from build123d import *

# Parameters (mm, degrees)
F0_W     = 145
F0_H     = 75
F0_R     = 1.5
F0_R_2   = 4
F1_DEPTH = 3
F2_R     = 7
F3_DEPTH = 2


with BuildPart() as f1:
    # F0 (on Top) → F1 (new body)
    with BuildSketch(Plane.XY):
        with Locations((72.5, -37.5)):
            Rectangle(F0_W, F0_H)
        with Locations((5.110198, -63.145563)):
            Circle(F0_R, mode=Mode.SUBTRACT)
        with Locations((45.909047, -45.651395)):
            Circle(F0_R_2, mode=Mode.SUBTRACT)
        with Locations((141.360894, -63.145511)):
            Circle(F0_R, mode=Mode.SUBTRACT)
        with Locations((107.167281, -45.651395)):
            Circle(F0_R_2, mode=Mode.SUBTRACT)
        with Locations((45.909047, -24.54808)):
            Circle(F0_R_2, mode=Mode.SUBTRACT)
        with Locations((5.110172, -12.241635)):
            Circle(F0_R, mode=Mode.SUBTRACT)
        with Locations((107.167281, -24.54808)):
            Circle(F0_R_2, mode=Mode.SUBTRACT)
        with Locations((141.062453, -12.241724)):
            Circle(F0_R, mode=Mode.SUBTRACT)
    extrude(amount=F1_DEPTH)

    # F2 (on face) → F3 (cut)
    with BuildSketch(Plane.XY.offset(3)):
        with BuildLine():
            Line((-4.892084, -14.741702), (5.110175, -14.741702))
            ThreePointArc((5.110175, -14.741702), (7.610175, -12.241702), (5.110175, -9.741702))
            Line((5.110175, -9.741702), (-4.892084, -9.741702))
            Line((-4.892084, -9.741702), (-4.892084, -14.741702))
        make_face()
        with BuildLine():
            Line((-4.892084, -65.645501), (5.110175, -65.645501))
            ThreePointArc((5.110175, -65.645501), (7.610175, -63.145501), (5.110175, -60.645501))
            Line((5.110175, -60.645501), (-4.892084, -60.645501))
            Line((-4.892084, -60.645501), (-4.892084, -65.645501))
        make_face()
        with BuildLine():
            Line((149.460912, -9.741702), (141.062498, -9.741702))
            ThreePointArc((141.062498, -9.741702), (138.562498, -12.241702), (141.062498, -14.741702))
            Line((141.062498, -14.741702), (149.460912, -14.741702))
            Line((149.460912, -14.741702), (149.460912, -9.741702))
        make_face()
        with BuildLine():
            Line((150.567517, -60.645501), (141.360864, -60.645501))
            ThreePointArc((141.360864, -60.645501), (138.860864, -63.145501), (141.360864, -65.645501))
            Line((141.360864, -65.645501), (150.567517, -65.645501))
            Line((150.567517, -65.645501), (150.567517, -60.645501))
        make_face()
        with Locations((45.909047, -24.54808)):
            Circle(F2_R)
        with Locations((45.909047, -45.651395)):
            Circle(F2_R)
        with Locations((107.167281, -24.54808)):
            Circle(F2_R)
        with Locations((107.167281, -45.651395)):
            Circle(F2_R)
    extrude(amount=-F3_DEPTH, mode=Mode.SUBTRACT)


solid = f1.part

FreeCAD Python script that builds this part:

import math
import FreeCAD as App
import Part
import Sketcher

doc = App.newDocument("Part")
body = doc.addObject("PartDesign::Body", "Body")

# Sketch on XY plane
sketch1 = doc.addObject("Sketcher::SketchObject", "Sketch")
body.addObject(sketch1)
sketch1.AttachmentSupport = (doc.XY_Plane, [""])
sketch1.MapMode = "FlatFace"
sketch1.addGeometry([
    Part.LineSegment(App.Vector(0, 0, 0), App.Vector(0, -75, 0)),  # 0
    Part.LineSegment(App.Vector(0, -75, 0), App.Vector(145, -75, 0)),  # 1
    Part.LineSegment(App.Vector(145, -75, 0), App.Vector(145, 0, 0)),  # 2
    Part.LineSegment(App.Vector(145, 0, 0), App.Vector(0, 0, 0)),  # 3
    Part.Circle(App.Vector(5.110198, -63.145563, 0), App.Vector(0, 0, 1), 1.5),  # 4
    Part.Circle(App.Vector(45.909047, -45.651395, 0), App.Vector(0, 0, 1), 4),  # 5
    Part.Circle(App.Vector(141.360894, -63.145511, 0), App.Vector(0, 0, 1), 1.5),  # 6
    Part.Circle(App.Vector(107.167281, -45.651395, 0), App.Vector(0, 0, 1), 4),  # 7
    Part.Circle(App.Vector(45.909047, -24.54808, 0), App.Vector(0, 0, 1), 4),  # 8
    Part.Circle(App.Vector(5.110172, -12.241635, 0), App.Vector(0, 0, 1), 1.5),  # 9
    Part.Circle(App.Vector(107.167281, -24.54808, 0), App.Vector(0, 0, 1), 4),  # 10
    Part.Circle(App.Vector(141.062453, -12.241724, 0), App.Vector(0, 0, 1), 1.5),  # 11
], False)
sketch1.addConstraint([
    Sketcher.Constraint("Coincident", 0, 2, 1, 1),
    Sketcher.Constraint("Coincident", 1, 2, 2, 1),
    Sketcher.Constraint("Coincident", 2, 2, 3, 1),
    Sketcher.Constraint("Coincident", 3, 2, 0, 1),
    Sketcher.Constraint("Vertical", 0),
    Sketcher.Constraint("Horizontal", 1),
    Sketcher.Constraint("Vertical", 2),
    Sketcher.Constraint("Horizontal", 3),
    Sketcher.Constraint("Coincident", 3, 2, -1, 1),
    Sketcher.Constraint("Equal", 4, 6),
    Sketcher.Constraint("Equal", 5, 7),
    Sketcher.Constraint("Equal", 7, 8),
    Sketcher.Constraint("Equal", 6, 9),
    Sketcher.Constraint("Equal", 8, 10),
    Sketcher.Constraint("Equal", 9, 11),
    Sketcher.Constraint("Horizontal", 5, 3, 7, 3),
    Sketcher.Constraint("Horizontal", 8, 3, 10, 3),
    Sketcher.Constraint("Vertical", 5, 3, 8, 3),
    Sketcher.Constraint("Vertical", 7, 3, 10, 3),
    Sketcher.Constraint("Diameter", 4, 3.0),
    Sketcher.Constraint("Diameter", 5, 8.0),
    Sketcher.Constraint("DistanceX", 1, 1, 1, 2, 145.0),
    Sketcher.Constraint("DistanceY", 0, 2, 0, 1, 75.0),
    Sketcher.Constraint("DistanceY", 6, 3, -1, 1, 63.145511),
    Sketcher.Constraint("DistanceX", -1, 1, 7, 3, 107.167281),
    Sketcher.Constraint("DistanceY", 8, 3, -1, 1, 24.54808),
    Sketcher.Constraint("DistanceX", 4, 3, 5, 3, 40.798849),
    Sketcher.Constraint("DistanceY", 4, 3, 5, 3, 17.494168),
    Sketcher.Constraint("DistanceY", 5, 3, 9, 3, 33.40976),
    Sketcher.Constraint("DistanceX", 9, 3, 7, 3, 102.057109),
    Sketcher.Constraint("DistanceX", 9, 3, 6, 3, 136.250722),
    Sketcher.Constraint("DistanceY", 7, 3, 11, 3, 33.409671),
    Sketcher.Constraint("DistanceX", 11, 3, 6, 3, 0.298441),
    Sketcher.Constraint("DistanceX", -1, 1, 4, 3, 5.110198),
    Sketcher.Constraint("DistanceY", 4, 3, -1, 1, 63.145563),
])
pad1 = doc.addObject("PartDesign::Pad", "Pad")
body.addObject(pad1)
pad1.Profile = sketch1
pad1.Length = 3

# Sketch on XY plane
sketch2 = doc.addObject("Sketcher::SketchObject", "Sketch001")
body.addObject(sketch2)
sketch2.AttachmentSupport = (doc.XY_Plane, [""])
sketch2.MapMode = "FlatFace"
sketch2.AttachmentOffset = App.Placement(App.Vector(0, 0, 3), App.Rotation())
sketch2.addGeometry([
    Part.LineSegment(App.Vector(-4.892084, -14.741702, 0), App.Vector(5.110175, -14.741702, 0)),  # 0
    Part.ArcOfCircle(Part.Circle(App.Vector(5.110175, -12.241702, 0), App.Vector(0, 0, 1), 2.5), math.radians(-90), math.radians(90)),  # 1
    Part.LineSegment(App.Vector(5.110175, -9.741702, 0), App.Vector(-4.892084, -9.741702, 0)),  # 2
    Part.LineSegment(App.Vector(-4.892084, -9.741702, 0), App.Vector(-4.892084, -14.741702, 0)),  # 3
    Part.LineSegment(App.Vector(-4.892084, -65.645501, 0), App.Vector(5.110175, -65.645501, 0)),  # 4
    Part.ArcOfCircle(Part.Circle(App.Vector(5.110175, -63.145501, 0), App.Vector(0, 0, 1), 2.5), math.radians(-90), math.radians(90)),  # 5
    Part.LineSegment(App.Vector(5.110175, -60.645501, 0), App.Vector(-4.892084, -60.645501, 0)),  # 6
    Part.LineSegment(App.Vector(-4.892084, -60.645501, 0), App.Vector(-4.892084, -65.645501, 0)),  # 7
    Part.LineSegment(App.Vector(149.460912, -9.741702, 0), App.Vector(141.062498, -9.741702, 0)),  # 8
    Part.ArcOfCircle(Part.Circle(App.Vector(141.062498, -12.241702, 0), App.Vector(0, 0, 1), 2.5), math.radians(90), math.radians(270)),  # 9
    Part.LineSegment(App.Vector(141.062498, -14.741702, 0), App.Vector(149.460912, -14.741702, 0)),  # 10
    Part.LineSegment(App.Vector(149.460912, -14.741702, 0), App.Vector(149.460912, -9.741702, 0)),  # 11
    Part.LineSegment(App.Vector(150.567517, -60.645501, 0), App.Vector(141.360864, -60.645501, 0)),  # 12
    Part.ArcOfCircle(Part.Circle(App.Vector(141.360864, -63.145501, 0), App.Vector(0, 0, 1), 2.5), math.radians(90), math.radians(270)),  # 13
    Part.LineSegment(App.Vector(141.360864, -65.645501, 0), App.Vector(150.567517, -65.645501, 0)),  # 14
    Part.LineSegment(App.Vector(150.567517, -65.645501, 0), App.Vector(150.567517, -60.645501, 0)),  # 15
    Part.Circle(App.Vector(45.909047, -24.54808, 0), App.Vector(0, 0, 1), 7),  # 16
    Part.Circle(App.Vector(45.909047, -45.651395, 0), App.Vector(0, 0, 1), 7),  # 17
    Part.Circle(App.Vector(107.167281, -24.54808, 0), App.Vector(0, 0, 1), 7),  # 18
    Part.Circle(App.Vector(107.167281, -45.651395, 0), App.Vector(0, 0, 1), 7),  # 19
], False)
sketch2.addConstraint([
    Sketcher.Constraint("Tangent", 0, 2, 1, 1),
    Sketcher.Constraint("Tangent", 1, 2, 2, 1),
    Sketcher.Constraint("Coincident", 2, 2, 3, 1),
    Sketcher.Constraint("Coincident", 3, 2, 0, 1),
    Sketcher.Constraint("Tangent", 4, 2, 5, 1),
    Sketcher.Constraint("Tangent", 5, 2, 6, 1),
    Sketcher.Constraint("Coincident", 6, 2, 7, 1),
    Sketcher.Constraint("Coincident", 7, 2, 4, 1),
    Sketcher.Constraint("Tangent", 8, 2, 9, 1),
    Sketcher.Constraint("Tangent", 9, 2, 10, 1),
    Sketcher.Constraint("Coincident", 10, 2, 11, 1),
    Sketcher.Constraint("Coincident", 11, 2, 8, 1),
    Sketcher.Constraint("Tangent", 12, 2, 13, 1),
    Sketcher.Constraint("Tangent", 13, 2, 14, 1),
    Sketcher.Constraint("Coincident", 14, 2, 15, 1),
    Sketcher.Constraint("Coincident", 15, 2, 12, 1),
    Sketcher.Constraint("Horizontal", 0),
    Sketcher.Constraint("Horizontal", 2),
    Sketcher.Constraint("Vertical", 3),
    Sketcher.Constraint("Horizontal", 4),
    Sketcher.Constraint("Horizontal", 6),
    Sketcher.Constraint("Vertical", 7),
    Sketcher.Constraint("Horizontal", 8),
    Sketcher.Constraint("Horizontal", 10),
    Sketcher.Constraint("Vertical", 11),
    Sketcher.Constraint("Horizontal", 12),
    Sketcher.Constraint("Horizontal", 14),
    Sketcher.Constraint("Vertical", 15),
    Sketcher.Constraint("Equal", 1, 5),
    Sketcher.Constraint("Equal", 5, 9),
    Sketcher.Constraint("Equal", 9, 13),
    Sketcher.Constraint("Equal", 16, 17),
    Sketcher.Constraint("Equal", 17, 18),
    Sketcher.Constraint("Equal", 18, 19),
    Sketcher.Constraint("Horizontal", 1, 3, 9, 3),
    Sketcher.Constraint("Horizontal", 5, 3, 13, 3),
    Sketcher.Constraint("Horizontal", 16, 3, 18, 3),
    Sketcher.Constraint("Horizontal", 17, 3, 19, 3),
    Sketcher.Constraint("Vertical", 1, 3, 5, 3),
    Sketcher.Constraint("Vertical", 16, 3, 17, 3),
    Sketcher.Constraint("Vertical", 18, 3, 19, 3),
    Sketcher.Constraint("Vertical", 3, 2, 6, 2),
    Sketcher.Constraint("Diameter", 16, 14.0),
    Sketcher.Constraint("Radius", 1, 2.5),
    Sketcher.Constraint("DistanceX", 0, 1, 0, 2, 10.002259),
    Sketcher.Constraint("DistanceY", 5, 3, -1, 1, 63.145501),
    Sketcher.Constraint("DistanceX", -1, 1, 9, 3, 141.062498),
    Sketcher.Constraint("DistanceY", 5, 3, 1, 3, 50.903799),
    Sketcher.Constraint("DistanceX", 8, 2, 8, 1, 8.398414),
    Sketcher.Constraint("DistanceX", 12, 2, 12, 1, 9.206653),
    Sketcher.Constraint("DistanceY", 16, 3, -1, 1, 24.54808),
    Sketcher.Constraint("DistanceX", -1, 1, 18, 3, 107.167281),
    Sketcher.Constraint("DistanceX", 5, 3, 13, 3, 136.250689),
    Sketcher.Constraint("DistanceX", 16, 3, 9, 3, 95.153451),
    Sketcher.Constraint("DistanceX", 2, 2, 16, 3, 50.801131),
    Sketcher.Constraint("DistanceY", 17, 3, -1, 1, 45.651395),
])
pocket1 = doc.addObject("PartDesign::Pocket", "Pocket")
body.addObject(pocket1)
pocket1.Profile = sketch2
pocket1.Length = 2

doc.recompute()
